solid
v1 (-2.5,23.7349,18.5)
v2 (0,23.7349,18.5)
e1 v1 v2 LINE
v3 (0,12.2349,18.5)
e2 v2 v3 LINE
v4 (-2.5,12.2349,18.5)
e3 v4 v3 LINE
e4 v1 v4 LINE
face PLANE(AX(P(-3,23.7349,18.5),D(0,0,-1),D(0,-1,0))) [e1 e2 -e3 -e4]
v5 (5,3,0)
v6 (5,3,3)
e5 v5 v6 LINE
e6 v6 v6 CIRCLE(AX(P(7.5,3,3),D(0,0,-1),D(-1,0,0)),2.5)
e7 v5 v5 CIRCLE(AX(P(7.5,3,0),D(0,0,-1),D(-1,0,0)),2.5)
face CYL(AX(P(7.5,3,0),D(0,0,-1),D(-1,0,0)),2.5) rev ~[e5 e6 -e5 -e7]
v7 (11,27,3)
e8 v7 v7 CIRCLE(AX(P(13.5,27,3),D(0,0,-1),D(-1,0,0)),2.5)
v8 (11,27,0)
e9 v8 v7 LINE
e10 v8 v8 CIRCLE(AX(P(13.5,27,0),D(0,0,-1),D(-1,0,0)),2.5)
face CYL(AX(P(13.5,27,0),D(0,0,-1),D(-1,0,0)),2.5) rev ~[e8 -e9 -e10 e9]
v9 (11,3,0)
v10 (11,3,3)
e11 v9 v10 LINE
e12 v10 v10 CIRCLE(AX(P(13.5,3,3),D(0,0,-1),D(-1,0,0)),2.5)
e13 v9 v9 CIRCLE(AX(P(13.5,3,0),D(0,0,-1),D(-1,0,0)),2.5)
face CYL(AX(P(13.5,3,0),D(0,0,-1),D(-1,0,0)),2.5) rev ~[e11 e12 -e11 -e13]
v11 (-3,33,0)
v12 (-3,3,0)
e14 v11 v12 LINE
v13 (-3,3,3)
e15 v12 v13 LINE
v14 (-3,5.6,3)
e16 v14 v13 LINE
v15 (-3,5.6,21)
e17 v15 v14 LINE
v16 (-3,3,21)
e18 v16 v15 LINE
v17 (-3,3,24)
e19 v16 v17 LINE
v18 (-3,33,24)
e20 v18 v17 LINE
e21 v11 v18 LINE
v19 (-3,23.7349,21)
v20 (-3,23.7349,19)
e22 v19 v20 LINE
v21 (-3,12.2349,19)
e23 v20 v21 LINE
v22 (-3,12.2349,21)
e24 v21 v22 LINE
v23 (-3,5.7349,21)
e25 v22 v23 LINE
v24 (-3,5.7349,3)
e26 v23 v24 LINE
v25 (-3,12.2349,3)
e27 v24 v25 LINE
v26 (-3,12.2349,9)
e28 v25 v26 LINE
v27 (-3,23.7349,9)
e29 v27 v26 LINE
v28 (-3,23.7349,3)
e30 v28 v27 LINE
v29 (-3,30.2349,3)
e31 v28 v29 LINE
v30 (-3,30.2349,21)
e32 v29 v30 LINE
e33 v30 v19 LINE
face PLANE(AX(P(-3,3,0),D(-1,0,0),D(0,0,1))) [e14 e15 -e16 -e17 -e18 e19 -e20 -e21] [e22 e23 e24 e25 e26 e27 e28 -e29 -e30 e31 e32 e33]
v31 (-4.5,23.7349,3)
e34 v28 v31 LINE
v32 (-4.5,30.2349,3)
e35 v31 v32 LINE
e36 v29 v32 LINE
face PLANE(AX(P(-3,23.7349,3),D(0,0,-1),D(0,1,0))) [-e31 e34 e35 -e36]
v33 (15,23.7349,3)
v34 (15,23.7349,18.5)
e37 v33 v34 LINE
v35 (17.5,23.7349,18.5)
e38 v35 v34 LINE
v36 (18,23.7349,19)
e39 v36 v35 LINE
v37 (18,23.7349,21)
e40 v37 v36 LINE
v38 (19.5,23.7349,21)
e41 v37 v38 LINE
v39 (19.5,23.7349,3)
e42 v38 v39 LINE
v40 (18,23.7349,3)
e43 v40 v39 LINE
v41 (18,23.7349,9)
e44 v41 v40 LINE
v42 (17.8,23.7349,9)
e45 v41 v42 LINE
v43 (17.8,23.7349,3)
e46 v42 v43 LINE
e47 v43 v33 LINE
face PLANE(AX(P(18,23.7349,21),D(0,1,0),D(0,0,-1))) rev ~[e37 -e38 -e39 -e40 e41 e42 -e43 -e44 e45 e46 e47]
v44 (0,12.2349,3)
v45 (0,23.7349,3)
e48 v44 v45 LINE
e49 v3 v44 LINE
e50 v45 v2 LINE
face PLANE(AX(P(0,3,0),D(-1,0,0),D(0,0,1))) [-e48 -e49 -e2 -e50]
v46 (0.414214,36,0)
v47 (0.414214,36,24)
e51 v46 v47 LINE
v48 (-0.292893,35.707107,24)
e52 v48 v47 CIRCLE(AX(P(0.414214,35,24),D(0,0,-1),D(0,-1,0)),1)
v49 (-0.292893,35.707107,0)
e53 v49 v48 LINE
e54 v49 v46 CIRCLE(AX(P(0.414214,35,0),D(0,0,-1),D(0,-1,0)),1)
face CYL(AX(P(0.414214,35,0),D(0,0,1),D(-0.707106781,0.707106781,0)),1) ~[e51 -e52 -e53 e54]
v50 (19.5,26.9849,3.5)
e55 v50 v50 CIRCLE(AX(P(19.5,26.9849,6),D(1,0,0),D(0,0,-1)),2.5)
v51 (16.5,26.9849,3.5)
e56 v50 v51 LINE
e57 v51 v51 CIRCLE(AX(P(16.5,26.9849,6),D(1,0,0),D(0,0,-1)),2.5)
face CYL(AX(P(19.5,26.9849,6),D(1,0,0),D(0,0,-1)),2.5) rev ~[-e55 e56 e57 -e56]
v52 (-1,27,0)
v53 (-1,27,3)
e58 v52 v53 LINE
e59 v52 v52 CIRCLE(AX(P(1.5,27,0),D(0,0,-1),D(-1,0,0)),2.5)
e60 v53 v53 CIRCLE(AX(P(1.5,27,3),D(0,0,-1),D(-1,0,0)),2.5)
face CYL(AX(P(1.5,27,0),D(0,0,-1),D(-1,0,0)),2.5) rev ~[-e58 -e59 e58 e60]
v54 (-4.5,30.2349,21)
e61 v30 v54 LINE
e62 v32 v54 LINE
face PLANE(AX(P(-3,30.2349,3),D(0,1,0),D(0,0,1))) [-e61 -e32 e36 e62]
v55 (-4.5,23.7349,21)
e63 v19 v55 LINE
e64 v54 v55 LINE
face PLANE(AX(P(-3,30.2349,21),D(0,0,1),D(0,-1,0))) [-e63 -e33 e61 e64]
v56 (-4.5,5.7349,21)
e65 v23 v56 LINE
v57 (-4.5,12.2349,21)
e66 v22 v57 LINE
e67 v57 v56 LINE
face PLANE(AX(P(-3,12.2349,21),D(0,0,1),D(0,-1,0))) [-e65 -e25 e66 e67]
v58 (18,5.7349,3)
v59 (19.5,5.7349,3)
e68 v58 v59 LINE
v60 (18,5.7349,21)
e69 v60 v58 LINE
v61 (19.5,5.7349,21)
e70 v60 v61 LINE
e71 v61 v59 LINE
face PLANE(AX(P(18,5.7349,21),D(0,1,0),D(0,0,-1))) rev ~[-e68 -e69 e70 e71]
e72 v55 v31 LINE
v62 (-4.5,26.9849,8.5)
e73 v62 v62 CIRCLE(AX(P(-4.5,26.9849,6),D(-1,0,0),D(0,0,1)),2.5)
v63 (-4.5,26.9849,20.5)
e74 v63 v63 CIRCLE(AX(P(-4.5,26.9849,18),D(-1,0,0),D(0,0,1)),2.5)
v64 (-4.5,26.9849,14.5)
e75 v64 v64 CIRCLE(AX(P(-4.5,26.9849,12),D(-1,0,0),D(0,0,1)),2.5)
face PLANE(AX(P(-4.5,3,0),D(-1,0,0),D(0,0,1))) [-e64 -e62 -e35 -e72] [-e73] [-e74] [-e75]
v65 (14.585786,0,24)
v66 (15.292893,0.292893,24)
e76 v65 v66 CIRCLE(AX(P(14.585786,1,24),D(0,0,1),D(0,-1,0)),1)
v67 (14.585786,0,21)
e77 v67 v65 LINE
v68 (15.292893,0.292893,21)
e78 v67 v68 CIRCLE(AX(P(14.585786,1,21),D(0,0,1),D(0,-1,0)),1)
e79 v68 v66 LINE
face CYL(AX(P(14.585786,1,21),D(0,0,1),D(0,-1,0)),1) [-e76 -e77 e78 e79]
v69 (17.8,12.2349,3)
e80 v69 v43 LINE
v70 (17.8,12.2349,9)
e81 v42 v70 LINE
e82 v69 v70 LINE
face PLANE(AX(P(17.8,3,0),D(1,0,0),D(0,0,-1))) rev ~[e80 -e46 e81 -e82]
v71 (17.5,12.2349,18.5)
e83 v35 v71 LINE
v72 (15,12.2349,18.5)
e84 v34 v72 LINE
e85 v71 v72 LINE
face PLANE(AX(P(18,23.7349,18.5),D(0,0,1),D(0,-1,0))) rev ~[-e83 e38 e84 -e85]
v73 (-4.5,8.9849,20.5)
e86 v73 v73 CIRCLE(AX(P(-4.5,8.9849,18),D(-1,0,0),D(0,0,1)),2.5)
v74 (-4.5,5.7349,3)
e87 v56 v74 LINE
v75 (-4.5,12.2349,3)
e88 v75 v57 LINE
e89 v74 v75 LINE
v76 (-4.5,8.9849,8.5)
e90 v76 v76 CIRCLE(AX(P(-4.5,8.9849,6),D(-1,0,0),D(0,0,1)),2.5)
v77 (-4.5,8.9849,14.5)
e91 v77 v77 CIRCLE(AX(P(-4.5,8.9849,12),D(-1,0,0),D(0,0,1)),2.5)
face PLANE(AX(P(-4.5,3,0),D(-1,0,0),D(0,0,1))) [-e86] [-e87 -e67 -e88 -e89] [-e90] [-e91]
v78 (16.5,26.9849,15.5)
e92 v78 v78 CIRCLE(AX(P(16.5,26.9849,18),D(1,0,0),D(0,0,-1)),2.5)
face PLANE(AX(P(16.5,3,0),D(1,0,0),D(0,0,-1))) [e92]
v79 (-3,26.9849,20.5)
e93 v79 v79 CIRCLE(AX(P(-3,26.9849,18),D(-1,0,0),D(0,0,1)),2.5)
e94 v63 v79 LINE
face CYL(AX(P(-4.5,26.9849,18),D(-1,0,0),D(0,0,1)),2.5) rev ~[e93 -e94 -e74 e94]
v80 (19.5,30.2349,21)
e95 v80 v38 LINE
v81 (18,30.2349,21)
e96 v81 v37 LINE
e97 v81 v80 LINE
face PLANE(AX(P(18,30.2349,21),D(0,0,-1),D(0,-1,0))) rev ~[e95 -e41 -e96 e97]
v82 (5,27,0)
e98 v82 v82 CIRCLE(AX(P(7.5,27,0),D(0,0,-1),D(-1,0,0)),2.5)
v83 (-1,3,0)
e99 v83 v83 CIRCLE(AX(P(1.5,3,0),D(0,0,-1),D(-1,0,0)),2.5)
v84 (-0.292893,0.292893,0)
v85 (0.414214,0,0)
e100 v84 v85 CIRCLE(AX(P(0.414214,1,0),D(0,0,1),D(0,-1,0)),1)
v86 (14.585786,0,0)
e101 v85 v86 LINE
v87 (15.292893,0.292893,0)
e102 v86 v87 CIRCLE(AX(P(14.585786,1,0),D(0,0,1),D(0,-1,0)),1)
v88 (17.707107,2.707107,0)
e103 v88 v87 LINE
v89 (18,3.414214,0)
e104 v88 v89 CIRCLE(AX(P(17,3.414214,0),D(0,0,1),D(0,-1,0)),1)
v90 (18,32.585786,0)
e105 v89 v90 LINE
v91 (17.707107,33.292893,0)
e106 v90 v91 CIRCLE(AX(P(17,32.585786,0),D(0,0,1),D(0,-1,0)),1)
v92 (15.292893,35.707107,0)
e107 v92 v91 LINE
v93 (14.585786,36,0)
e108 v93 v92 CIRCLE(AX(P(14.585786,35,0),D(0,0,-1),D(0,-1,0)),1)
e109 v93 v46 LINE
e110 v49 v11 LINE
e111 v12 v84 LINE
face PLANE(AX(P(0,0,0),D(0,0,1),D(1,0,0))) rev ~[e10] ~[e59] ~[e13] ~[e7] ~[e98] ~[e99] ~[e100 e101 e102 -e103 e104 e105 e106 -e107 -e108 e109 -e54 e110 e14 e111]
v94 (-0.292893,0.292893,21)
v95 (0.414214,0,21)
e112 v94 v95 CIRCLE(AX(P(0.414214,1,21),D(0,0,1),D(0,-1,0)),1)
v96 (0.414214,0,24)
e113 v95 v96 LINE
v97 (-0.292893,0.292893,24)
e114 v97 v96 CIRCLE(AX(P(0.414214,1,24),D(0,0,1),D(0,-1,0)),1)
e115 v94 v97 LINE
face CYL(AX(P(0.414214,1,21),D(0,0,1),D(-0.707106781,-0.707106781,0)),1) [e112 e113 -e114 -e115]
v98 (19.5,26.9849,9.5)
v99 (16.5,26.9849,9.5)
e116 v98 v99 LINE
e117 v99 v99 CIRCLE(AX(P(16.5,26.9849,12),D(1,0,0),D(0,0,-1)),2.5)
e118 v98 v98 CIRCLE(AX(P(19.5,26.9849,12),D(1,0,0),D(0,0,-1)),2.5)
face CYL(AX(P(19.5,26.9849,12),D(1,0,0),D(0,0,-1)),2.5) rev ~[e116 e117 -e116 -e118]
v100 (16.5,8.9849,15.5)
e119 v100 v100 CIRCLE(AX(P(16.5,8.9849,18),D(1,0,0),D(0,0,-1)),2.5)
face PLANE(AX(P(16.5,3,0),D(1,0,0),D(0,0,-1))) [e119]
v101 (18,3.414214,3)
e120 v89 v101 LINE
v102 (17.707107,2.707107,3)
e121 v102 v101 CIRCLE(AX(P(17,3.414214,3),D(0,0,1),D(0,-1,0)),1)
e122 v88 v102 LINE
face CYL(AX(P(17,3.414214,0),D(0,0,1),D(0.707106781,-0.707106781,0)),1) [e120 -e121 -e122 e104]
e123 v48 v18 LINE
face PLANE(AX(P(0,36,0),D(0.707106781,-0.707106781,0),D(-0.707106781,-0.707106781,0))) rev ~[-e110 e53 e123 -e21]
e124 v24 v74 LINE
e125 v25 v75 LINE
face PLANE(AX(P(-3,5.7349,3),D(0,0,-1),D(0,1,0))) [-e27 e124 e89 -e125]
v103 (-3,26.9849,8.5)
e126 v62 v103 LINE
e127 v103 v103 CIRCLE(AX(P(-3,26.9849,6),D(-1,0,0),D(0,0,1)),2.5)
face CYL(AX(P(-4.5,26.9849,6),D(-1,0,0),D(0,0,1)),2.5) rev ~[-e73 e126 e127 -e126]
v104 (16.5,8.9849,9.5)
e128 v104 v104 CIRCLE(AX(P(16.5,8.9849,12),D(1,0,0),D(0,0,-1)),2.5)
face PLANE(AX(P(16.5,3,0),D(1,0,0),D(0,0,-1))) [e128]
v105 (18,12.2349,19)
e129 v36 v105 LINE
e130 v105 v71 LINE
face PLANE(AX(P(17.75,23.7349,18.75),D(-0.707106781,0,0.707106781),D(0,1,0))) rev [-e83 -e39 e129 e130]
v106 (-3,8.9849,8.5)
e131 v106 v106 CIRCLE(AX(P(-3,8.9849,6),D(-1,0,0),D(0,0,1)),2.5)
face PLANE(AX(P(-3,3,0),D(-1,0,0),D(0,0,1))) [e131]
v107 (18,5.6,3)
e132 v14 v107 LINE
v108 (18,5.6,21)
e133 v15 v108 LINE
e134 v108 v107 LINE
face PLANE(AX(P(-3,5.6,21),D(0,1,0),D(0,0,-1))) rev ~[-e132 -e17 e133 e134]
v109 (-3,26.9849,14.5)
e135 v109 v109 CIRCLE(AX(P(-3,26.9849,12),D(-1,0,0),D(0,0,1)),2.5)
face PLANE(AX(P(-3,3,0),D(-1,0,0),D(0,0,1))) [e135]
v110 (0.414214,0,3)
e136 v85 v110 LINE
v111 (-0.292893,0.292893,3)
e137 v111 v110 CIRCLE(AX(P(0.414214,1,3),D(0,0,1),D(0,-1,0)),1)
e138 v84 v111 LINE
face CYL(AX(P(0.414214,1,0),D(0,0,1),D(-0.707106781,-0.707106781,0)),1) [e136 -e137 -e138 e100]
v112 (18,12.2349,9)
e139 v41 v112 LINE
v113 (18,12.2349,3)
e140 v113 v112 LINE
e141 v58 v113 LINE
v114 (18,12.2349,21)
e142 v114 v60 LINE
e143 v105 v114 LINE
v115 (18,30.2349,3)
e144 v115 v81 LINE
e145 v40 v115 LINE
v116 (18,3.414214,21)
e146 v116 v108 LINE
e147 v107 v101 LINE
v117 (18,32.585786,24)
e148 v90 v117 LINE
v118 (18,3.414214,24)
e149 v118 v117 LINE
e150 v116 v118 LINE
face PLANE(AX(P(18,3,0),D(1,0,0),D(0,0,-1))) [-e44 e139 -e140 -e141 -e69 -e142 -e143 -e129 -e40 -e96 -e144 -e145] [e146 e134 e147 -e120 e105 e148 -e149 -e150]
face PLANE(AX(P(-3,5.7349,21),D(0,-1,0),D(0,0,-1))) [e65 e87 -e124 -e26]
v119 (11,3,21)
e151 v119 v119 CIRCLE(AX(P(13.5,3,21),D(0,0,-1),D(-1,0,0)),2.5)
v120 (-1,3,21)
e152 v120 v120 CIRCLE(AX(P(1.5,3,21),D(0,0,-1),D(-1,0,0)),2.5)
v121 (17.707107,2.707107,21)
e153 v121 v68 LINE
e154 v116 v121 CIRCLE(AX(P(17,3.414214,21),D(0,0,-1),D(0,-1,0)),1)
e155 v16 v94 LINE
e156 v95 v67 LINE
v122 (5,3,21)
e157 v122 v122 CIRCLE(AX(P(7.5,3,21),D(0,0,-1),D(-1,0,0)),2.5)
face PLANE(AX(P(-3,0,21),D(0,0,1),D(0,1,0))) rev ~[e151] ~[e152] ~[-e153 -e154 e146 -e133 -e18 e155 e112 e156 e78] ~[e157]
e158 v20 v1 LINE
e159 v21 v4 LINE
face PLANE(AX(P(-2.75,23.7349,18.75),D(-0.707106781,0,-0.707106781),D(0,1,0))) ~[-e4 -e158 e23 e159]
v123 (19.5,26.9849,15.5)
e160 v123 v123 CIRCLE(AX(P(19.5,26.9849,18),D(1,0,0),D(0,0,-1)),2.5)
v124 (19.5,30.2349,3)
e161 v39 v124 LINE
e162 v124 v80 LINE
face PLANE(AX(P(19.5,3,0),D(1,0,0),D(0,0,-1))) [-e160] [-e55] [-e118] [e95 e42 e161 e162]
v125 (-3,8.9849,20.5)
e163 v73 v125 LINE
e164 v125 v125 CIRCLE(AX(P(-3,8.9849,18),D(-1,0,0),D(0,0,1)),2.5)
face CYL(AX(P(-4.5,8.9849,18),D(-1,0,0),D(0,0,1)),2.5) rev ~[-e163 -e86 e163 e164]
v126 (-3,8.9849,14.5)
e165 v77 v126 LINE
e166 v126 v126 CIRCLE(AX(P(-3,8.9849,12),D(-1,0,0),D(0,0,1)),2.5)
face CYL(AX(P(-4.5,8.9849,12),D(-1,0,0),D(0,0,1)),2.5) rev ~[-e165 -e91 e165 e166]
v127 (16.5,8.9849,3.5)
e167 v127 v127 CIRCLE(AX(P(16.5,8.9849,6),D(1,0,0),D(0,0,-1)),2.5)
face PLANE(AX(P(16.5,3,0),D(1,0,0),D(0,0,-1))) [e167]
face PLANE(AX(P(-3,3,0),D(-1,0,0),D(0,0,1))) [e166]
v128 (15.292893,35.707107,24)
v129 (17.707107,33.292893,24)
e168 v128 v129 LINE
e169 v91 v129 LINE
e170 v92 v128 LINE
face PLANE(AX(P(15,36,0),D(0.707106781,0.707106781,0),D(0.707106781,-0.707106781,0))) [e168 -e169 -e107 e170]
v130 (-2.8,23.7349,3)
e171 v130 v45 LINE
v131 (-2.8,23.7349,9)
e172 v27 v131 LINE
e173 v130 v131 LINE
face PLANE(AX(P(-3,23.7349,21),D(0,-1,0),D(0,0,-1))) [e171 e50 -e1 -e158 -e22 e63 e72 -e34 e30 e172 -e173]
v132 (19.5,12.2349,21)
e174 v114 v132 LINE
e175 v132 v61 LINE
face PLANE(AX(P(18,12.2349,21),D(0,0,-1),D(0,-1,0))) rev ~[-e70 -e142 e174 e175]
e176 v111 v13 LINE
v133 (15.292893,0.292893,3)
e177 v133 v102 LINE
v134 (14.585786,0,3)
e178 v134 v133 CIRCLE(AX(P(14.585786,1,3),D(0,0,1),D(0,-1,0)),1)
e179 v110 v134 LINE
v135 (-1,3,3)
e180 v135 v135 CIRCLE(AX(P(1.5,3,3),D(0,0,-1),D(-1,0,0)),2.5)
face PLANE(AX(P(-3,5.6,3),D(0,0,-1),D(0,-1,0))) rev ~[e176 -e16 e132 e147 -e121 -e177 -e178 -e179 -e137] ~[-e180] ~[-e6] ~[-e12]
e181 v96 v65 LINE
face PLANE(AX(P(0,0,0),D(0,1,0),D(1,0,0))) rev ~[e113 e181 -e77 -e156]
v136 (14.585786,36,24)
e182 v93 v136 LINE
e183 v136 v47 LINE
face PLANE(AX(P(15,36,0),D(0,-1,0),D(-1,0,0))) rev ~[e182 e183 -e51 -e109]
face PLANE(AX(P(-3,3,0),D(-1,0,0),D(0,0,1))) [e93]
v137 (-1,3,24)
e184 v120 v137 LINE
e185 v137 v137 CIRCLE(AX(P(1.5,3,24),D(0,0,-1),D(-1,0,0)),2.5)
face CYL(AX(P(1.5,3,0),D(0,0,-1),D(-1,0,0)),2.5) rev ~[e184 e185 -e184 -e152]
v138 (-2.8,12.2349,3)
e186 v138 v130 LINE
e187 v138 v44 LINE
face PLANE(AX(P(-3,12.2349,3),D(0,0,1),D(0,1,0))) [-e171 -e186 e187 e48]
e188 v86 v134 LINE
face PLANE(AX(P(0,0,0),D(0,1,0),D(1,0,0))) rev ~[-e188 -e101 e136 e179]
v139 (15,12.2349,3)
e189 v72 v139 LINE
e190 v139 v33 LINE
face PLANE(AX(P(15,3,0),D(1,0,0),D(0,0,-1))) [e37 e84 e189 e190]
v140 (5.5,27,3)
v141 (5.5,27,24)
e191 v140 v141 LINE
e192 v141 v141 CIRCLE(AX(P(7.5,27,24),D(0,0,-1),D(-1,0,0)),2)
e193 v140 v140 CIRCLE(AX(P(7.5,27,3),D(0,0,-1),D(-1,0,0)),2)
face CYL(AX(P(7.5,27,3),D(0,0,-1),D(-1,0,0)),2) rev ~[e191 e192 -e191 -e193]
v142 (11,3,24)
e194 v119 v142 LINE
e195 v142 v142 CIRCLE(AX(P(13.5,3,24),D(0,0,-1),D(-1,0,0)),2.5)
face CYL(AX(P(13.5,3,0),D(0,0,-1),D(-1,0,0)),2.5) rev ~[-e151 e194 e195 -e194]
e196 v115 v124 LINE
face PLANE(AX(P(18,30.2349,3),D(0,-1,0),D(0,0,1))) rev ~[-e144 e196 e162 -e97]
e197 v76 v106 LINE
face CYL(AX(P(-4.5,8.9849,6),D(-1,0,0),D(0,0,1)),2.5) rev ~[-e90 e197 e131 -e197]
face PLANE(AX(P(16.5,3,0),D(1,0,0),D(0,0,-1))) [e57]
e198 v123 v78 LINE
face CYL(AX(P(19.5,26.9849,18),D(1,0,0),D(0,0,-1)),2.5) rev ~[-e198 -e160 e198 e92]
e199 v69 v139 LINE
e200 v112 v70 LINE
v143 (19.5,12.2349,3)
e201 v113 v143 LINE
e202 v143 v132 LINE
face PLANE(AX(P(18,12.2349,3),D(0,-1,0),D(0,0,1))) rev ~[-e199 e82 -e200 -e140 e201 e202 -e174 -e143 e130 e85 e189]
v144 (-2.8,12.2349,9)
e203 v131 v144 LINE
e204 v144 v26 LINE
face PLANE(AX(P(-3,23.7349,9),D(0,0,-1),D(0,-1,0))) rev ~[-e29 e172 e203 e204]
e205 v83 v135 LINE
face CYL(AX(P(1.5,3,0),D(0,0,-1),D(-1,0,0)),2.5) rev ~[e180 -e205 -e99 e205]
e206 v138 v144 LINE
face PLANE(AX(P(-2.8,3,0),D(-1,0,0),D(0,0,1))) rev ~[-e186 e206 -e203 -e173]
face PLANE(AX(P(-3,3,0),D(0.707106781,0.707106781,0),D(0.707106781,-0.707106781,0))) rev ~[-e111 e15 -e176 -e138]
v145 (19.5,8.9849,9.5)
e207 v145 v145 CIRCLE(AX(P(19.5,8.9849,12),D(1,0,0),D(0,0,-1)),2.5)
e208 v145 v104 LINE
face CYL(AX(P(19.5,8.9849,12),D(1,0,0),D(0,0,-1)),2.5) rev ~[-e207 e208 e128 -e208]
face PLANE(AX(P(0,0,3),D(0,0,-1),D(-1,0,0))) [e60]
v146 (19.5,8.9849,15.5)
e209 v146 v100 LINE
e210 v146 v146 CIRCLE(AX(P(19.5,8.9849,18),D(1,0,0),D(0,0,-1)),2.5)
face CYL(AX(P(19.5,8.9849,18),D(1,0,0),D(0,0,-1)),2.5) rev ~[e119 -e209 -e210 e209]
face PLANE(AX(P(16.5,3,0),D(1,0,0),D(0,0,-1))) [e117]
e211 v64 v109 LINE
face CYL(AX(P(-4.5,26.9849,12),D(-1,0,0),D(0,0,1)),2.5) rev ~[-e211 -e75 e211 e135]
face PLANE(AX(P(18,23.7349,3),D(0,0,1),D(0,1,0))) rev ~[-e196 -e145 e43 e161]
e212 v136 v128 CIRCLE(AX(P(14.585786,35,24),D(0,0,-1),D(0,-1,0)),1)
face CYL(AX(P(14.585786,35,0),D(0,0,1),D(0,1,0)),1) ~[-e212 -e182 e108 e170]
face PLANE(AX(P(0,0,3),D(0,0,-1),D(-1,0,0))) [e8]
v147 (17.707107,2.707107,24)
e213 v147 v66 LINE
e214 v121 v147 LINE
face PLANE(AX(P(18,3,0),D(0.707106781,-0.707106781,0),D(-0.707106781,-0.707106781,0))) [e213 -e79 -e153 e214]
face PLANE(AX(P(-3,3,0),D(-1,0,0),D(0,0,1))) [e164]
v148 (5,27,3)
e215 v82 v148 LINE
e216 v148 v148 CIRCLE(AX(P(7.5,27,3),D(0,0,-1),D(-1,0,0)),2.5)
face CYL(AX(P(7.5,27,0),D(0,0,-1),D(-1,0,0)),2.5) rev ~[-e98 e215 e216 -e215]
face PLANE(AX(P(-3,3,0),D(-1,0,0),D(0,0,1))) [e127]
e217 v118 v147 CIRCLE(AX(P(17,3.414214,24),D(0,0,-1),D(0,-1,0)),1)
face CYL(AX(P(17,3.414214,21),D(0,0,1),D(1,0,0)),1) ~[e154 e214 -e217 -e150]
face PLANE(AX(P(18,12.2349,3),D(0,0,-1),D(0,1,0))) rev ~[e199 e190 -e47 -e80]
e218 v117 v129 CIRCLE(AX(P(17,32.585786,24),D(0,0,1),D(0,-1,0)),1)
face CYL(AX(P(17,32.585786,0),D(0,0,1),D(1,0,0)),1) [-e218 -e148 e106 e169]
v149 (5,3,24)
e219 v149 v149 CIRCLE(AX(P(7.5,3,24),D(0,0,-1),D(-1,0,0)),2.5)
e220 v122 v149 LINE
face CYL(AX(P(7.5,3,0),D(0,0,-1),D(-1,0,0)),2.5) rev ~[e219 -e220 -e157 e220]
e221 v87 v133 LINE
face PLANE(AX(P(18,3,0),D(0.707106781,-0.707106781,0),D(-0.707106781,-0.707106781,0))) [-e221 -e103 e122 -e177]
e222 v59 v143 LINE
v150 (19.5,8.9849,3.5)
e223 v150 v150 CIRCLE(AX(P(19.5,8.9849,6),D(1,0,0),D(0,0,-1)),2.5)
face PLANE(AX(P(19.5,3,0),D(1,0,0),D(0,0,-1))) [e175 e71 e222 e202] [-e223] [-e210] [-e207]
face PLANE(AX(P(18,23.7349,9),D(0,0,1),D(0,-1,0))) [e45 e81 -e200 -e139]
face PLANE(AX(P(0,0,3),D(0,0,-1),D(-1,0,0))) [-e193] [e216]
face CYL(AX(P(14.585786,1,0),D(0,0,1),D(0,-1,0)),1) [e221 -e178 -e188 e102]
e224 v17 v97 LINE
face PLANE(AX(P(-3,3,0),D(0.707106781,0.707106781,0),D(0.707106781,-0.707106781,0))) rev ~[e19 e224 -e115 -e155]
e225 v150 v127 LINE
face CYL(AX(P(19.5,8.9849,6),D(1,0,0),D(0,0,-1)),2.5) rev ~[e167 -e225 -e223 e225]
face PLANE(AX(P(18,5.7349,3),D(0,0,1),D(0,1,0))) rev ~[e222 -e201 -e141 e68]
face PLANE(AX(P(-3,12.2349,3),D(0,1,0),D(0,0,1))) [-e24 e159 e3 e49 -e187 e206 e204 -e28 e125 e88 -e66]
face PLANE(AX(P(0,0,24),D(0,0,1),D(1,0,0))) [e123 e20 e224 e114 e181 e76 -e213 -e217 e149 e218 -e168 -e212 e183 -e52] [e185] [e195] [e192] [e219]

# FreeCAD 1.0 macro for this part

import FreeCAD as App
import Part
import Sketcher


def edges_at(feature, points):
    """Names of the edges that pass closest to the given points."""
    edges = feature.Shape.Edges
    near = lambda p: min(range(len(edges)), key=lambda i: edges[i].distToShape(Part.Vertex(*p))[0])
    return sorted({f"Edge{near(p) + 1}" for p in points})

doc = App.newDocument("Part")
body = doc.addObject("PartDesign::Body", "Body")

# Sketch on XY plane
sketch1 = doc.addObject("Sketcher::SketchObject", "Sketch")
body.addObject(sketch1)
sketch1.AttachmentSupport = (doc.XY_Plane, [""])
sketch1.MapMode = "FlatFace"
sketch1.addGeometry([
    Part.LineSegment(App.Vector(-3, 3, 0), App.Vector(0, 0, 0)),  # 0
    Part.LineSegment(App.Vector(0, 0, 0), App.Vector(15, 0, 0)),  # 1
    Part.LineSegment(App.Vector(15, 0, 0), App.Vector(18, 3, 0)),  # 2
    Part.LineSegment(App.Vector(18, 3, 0), App.Vector(18, 33, 0)),  # 3
    Part.LineSegment(App.Vector(18, 33, 0), App.Vector(15, 36, 0)),  # 4
    Part.LineSegment(App.Vector(15, 36, 0), App.Vector(0, 36, 0)),  # 5
    Part.LineSegment(App.Vector(0, 36, 0), App.Vector(-3, 33, 0)),  # 6
    Part.LineSegment(App.Vector(-3, 33, 0), App.Vector(-3, 3, 0)),  # 7
], False)
sketch1.addConstraint([
    Sketcher.Constraint("Coincident", 0, 2, 1, 1),
    Sketcher.Constraint("Coincident", 1, 2, 2, 1),
    Sketcher.Constraint("Coincident", 2, 2, 3, 1),
    Sketcher.Constraint("Coincident", 3, 2, 4, 1),
    Sketcher.Constraint("Coincident", 4, 2, 5, 1),
    Sketcher.Constraint("Coincident", 5, 2, 6, 1),
    Sketcher.Constraint("Coincident", 6, 2, 7, 1),
    Sketcher.Constraint("Coincident", 7, 2, 0, 1),
    Sketcher.Constraint("Horizontal", 1),
    Sketcher.Constraint("Vertical", 3),
    Sketcher.Constraint("Horizontal", 5),
    Sketcher.Constraint("Vertical", 7),
    Sketcher.Constraint("Coincident", 0, 2, -1, 1),
    Sketcher.Constraint("PointOnObject", 5, 2, -2),
    Sketcher.Constraint("Perpendicular", 0, 2),
    Sketcher.Constraint("Perpendicular", 2, 4),
    Sketcher.Constraint("Perpendicular", 4, 6),
    Sketcher.Constraint("Horizontal", 3, 2, 6, 2),
    Sketcher.Constraint("Horizontal", 2, 2, 7, 2),
    Sketcher.Constraint("Vertical", 1, 2, 4, 2),
    Sketcher.Constraint("DistanceX", 1, 1, 1, 2, 15.0),
    Sketcher.Constraint("DistanceY", -1, 1, 4, 2, 36.0),
    Sketcher.Constraint("DistanceX", 6, 2, 3, 2, 21.0),
])
pad1 = doc.addObject("PartDesign::Pad", "Pad")
body.addObject(pad1)
pad1.Profile = sketch1
pad1.Length = 24

# Sketch on YZ plane
sketch2 = doc.addObject("Sketcher::SketchObject", "Sketch001")
body.addObject(sketch2)
sketch2.AttachmentSupport = (doc.YZ_Plane, [""])
sketch2.MapMode = "FlatFace"
sketch2.AttachmentOffset = App.Placement(App.Vector(0, 0, -3), App.Rotation())
sketch2.addGeometry([
    Part.LineSegment(App.Vector(6, 3, 0), App.Vector(0, 3, 0)),
    Part.LineSegment(App.Vector(0, 3, 0), App.Vector(0, 21, 0)),
    Part.LineSegment(App.Vector(0, 21, 0), App.Vector(6, 21, 0)),
    Part.LineSegment(App.Vector(6, 21, 0), App.Vector(6, 3, 0)),
], False)
sketch2.addConstraint([
    Sketcher.Constraint("Coincident", 0, 2, 1, 1),
    Sketcher.Constraint("Coincident", 1, 2, 2, 1),
    Sketcher.Constraint("Coincident", 2, 2, 3, 1),
    Sketcher.Constraint("Coincident", 3, 2, 0, 1),
    Sketcher.Constraint("Horizontal", 0),
    Sketcher.Constraint("Vertical", 1),
    Sketcher.Constraint("Horizontal", 2),
    Sketcher.Constraint("Vertical", 3),
    Sketcher.Constraint("PointOnObject", 0, 2, -2),
    Sketcher.Constraint("DistanceX", 0, 2, 0, 1, 5.6),
    Sketcher.Constraint("DistanceY", -1, 1, 0, 2, 3.0),
    Sketcher.Constraint("DistanceY", 1, 1, 1, 2, 18.0),
])
pocket1 = doc.addObject("PartDesign::Pocket", "Pocket")
body.addObject(pocket1)
pocket1.Profile = sketch2
pocket1.Type = "ThroughAll"
pocket1.Reversed = True

# Sketch on XY plane
sketch3 = doc.addObject("Sketcher::SketchObject", "Sketch002")
body.addObject(sketch3)
sketch3.AttachmentSupport = (doc.XY_Plane, [""])
sketch3.MapMode = "FlatFace"
sketch3.addGeometry([
    Part.Circle(App.Vector(7.5, 3, 0), App.Vector(0, 0, 1), 2.5),
    Part.Circle(App.Vector(1.5, 3, 0), App.Vector(0, 0, 1), 2.5),
    Part.Circle(App.Vector(13.5, 3, 0), App.Vector(0, 0, 1), 2.5),
], False)
sketch3.addConstraint([
    Sketcher.Constraint("Equal", 0, 1),
    Sketcher.Constraint("Equal", 1, 2),
    Sketcher.Constraint("Horizontal", 0, 3, 1, 3),
    Sketcher.Constraint("Horizontal", 1, 3, 2, 3),
    Sketcher.Constraint("Diameter", 0, 5.0),
    Sketcher.Constraint("DistanceX", 1, 3, 0, 3, 6.0),
    Sketcher.Constraint("DistanceX", 0, 3, 2, 3, 6.0),
    Sketcher.Constraint("DistanceY", -1, 1, 0, 3, 3.0),
    Sketcher.Constraint("DistanceX", -1, 1, 0, 3, 7.5),
])
pocket2 = doc.addObject("PartDesign::Pocket", "Pocket001")
body.addObject(pocket2)
pocket2.Profile = sketch3
pocket2.Type = "ThroughAll"
pocket2.Reversed = True

# Sketch on XY plane
sketch4 = doc.addObject("Sketcher::SketchObject", "Sketch003")
body.addObject(sketch4)
sketch4.AttachmentSupport = (doc.XY_Plane, [""])
sketch4.MapMode = "FlatFace"
sketch4.addGeometry([
    Part.Circle(App.Vector(7.5, 27, 0), App.Vector(0, 0, 1), 2.5),
    Part.Circle(App.Vector(1.5, 27, 0), App.Vector(0, 0, 1), 2.5),
    Part.Circle(App.Vector(13.5, 27, 0), App.Vector(0, 0, 1), 2.5),
], False)
sketch4.addConstraint([
    Sketcher.Constraint("Equal", 0, 1),
    Sketcher.Constraint("Equal", 1, 2),
    Sketcher.Constraint("Horizontal", 0, 3, 1, 3),
    Sketcher.Constraint("Horizontal", 1, 3, 2, 3),
    Sketcher.Constraint("Diameter", 0, 5.0),
    Sketcher.Constraint("DistanceX", 1, 3, 0, 3, 6.0),
    Sketcher.Constraint("DistanceX", 0, 3, 2, 3, 6.0),
    Sketcher.Constraint("DistanceY", -1, 1, 0, 3, 27.0),
    Sketcher.Constraint("DistanceX", -1, 1, 0, 3, 7.5),
])
pocket3 = doc.addObject("PartDesign::Pocket", "Pocket002")
body.addObject(pocket3)
pocket3.Profile = sketch4
pocket3.Length = 3
pocket3.Reversed = True

# Sketch on XY plane
sketch5 = doc.addObject("Sketcher::SketchObject", "Sketch004")
body.addObject(sketch5)
sketch5.AttachmentSupport = (doc.XY_Plane, [""])
sketch5.MapMode = "FlatFace"
sketch5.AttachmentOffset = App.Placement(App.Vector(0, 0, 3), App.Rotation())
sketch5.addGeometry(Part.Circle(App.Vector(7.5, 27, 0), App.Vector(0, 0, 1), 2), False)
sketch5.addConstraint([
    Sketcher.Constraint("Diameter", 0, 4.0),
    Sketcher.Constraint("DistanceY", -1, 1, 0, 3, 27.0),
    Sketcher.Constraint("DistanceX", -1, 1, 0, 3, 7.5),
])
pocket4 = doc.addObject("PartDesign::Pocket", "Pocket003")
body.addObject(pocket4)
pocket4.Profile = sketch5
pocket4.Type = "ThroughAll"
pocket4.Reversed = True

# Sketch on YZ plane
sketch6 = doc.addObject("Sketcher::SketchObject", "Sketch005")
body.addObject(sketch6)
sketch6.AttachmentSupport = (doc.YZ_Plane, [""])
sketch6.MapMode = "FlatFace"
sketch6.AttachmentOffset = App.Placement(App.Vector(0, 0, 18), App.Rotation())
sketch6.addGeometry([
    Part.LineSegment(App.Vector(30, 21, 0), App.Vector(24, 21, 0)),  # 0
    Part.LineSegment(App.Vector(24, 21, 0), App.Vector(24, 3, 0)),  # 1
    Part.LineSegment(App.Vector(24, 3, 0), App.Vector(30, 3, 0)),  # 2
    Part.LineSegment(App.Vector(30, 3, 0), App.Vector(30, 21, 0)),  # 3
    Part.LineSegment(App.Vector(12, 21, 0), App.Vector(6, 21, 0)),  # 4
    Part.LineSegment(App.Vector(6, 21, 0), App.Vector(6, 3, 0)),  # 5
    Part.LineSegment(App.Vector(6, 3, 0), App.Vector(12, 3, 0)),  # 6
    Part.LineSegment(App.Vector(12, 3, 0), App.Vector(12, 21, 0)),  # 7
], False)
sketch6.addConstraint([
    Sketcher.Constraint("Coincident", 0, 2, 1, 1),
    Sketcher.Constraint("Coincident", 1, 2, 2, 1),
    Sketcher.Constraint("Coincident", 2, 2, 3, 1),
    Sketcher.Constraint("Coincident", 3, 2, 0, 1),
    Sketcher.Constraint("Coincident", 4, 2, 5, 1),
    Sketcher.Constraint("Coincident", 5, 2, 6, 1),
    Sketcher.Constraint("Coincident", 6, 2, 7, 1),
    Sketcher.Constraint("Coincident", 7, 2, 4, 1),
    Sketcher.Constraint("Horizontal", 0),
    Sketcher.Constraint("Vertical", 1),
    Sketcher.Constraint("Horizontal", 2),
    Sketcher.Constraint("Vertical", 3),
    Sketcher.Constraint("Horizontal", 4),
    Sketcher.Constraint("Vertical", 5),
    Sketcher.Constraint("Horizontal", 6),
    Sketcher.Constraint("Vertical", 7),
    Sketcher.Constraint("Horizontal", 3, 2, 4, 2),
    Sketcher.Constraint("Horizontal", 2, 2, 5, 2),
    Sketcher.Constraint("Equal", 2, 4),
    Sketcher.Constraint("DistanceY", 1, 2, 1, 1, 18.0),
    Sketcher.Constraint("DistanceX", 0, 2, 0, 1, 6.5),
    Sketcher.Constraint("DistanceX", 4, 2, 0, 2, 18.0),
    Sketcher.Constraint("DistanceY", -1, 1, 0, 2, 21.0),
    Sketcher.Constraint("DistanceX", -1, 1, 0, 2, 23.735),
])
pad2 = doc.addObject("PartDesign::Pad", "Pad001")
body.addObject(pad2)
pad2.Profile = sketch6
pad2.Length = 1.5

# Sketch on YZ plane
sketch7 = doc.addObject("Sketcher::SketchObject", "Sketch006")
body.addObject(sketch7)
sketch7.AttachmentSupport = (doc.YZ_Plane, [""])
sketch7.MapMode = "FlatFace"
sketch7.AttachmentOffset = App.Placement(App.Vector(0, 0, 19.5), App.Rotation())
sketch7.addGeometry([
    Part.Circle(App.Vector(27, 12, 0), App.Vector(0, 0, 1), 2.5),  # 0
    Part.Circle(App.Vector(27, 6, 0), App.Vector(0, 0, 1), 2.5),  # 1
    Part.Circle(App.Vector(27, 18, 0), App.Vector(0, 0, 1), 2.5),  # 2
    Part.Circle(App.Vector(9, 12, 0), App.Vector(0, 0, 1), 2.5),  # 3
    Part.Circle(App.Vector(9, 6, 0), App.Vector(0, 0, 1), 2.5),  # 4
    Part.Circle(App.Vector(9, 18, 0), App.Vector(0, 0, 1), 2.5),  # 5
], False)
sketch7.addConstraint([
    Sketcher.Constraint("Equal", 0, 1),
    Sketcher.Constraint("Equal", 1, 2),
    Sketcher.Constraint("Equal", 2, 3),
    Sketcher.Constraint("Equal", 3, 4),
    Sketcher.Constraint("Equal", 4, 5),
    Sketcher.Constraint("Horizontal", 0, 3, 3, 3),
    Sketcher.Constraint("Horizontal", 1, 3, 4, 3),
    Sketcher.Constraint("Horizontal", 2, 3, 5, 3),
    Sketcher.Constraint("Vertical", 0, 3, 1, 3),
    Sketcher.Constraint("Vertical", 1, 3, 2, 3),
    Sketcher.Constraint("Vertical", 3, 3, 4, 3),
    Sketcher.Constraint("Vertical", 4, 3, 5, 3),
    Sketcher.Constraint("Diameter", 0, 5.0),
    Sketcher.Constraint("DistanceY", -1, 1, 1, 3, 6.0),
    Sketcher.Constraint("DistanceY", -1, 1, 2, 3, 18.0),
    Sketcher.Constraint("DistanceY", 1, 3, 0, 3, 6.0),
    Sketcher.Constraint("DistanceX", 3, 3, 0, 3, 18.0),
    Sketcher.Constraint("DistanceX", -1, 1, 0, 3, 26.985),
])
pocket5 = doc.addObject("PartDesign::Pocket", "Pocket004")
body.addObject(pocket5)
pocket5.Profile = sketch7
pocket5.Length = 3

# Sketch on YZ plane
sketch8 = doc.addObject("Sketcher::SketchObject", "Sketch007")
body.addObject(sketch8)
sketch8.AttachmentSupport = (doc.YZ_Plane, [""])
sketch8.MapMode = "FlatFace"
sketch8.AttachmentOffset = App.Placement(App.Vector(0, 0, -3), App.Rotation())
sketch8.addGeometry([
    Part.LineSegment(App.Vector(30, 21, 0), App.Vector(30, 3, 0)),  # 0
    Part.LineSegment(App.Vector(30, 3, 0), App.Vector(24, 3, 0)),  # 1
    Part.LineSegment(App.Vector(24, 3, 0), App.Vector(24, 21, 0)),  # 2
    Part.LineSegment(App.Vector(24, 21, 0), App.Vector(30, 21, 0)),  # 3
    Part.LineSegment(App.Vector(6, 21, 0), App.Vector(12, 21, 0)),  # 4
    Part.LineSegment(App.Vector(12, 21, 0), App.Vector(12, 3, 0)),  # 5
    Part.LineSegment(App.Vector(12, 3, 0), App.Vector(6, 3, 0)),  # 6
    Part.LineSegment(App.Vector(6, 3, 0), App.Vector(6, 21, 0)),  # 7
], False)
sketch8.addConstraint([
    Sketcher.Constraint("Coincident", 0, 2, 1, 1),
    Sketcher.Constraint("Coincident", 1, 2, 2, 1),
    Sketcher.Constraint("Coincident", 2, 2, 3, 1),
    Sketcher.Constraint("Coincident", 3, 2, 0, 1),
    Sketcher.Constraint("Coincident", 4, 2, 5, 1),
    Sketcher.Constraint("Coincident", 5, 2, 6, 1),
    Sketcher.Constraint("Coincident", 6, 2, 7, 1),
    Sketcher.Constraint("Coincident", 7, 2, 4, 1),
    Sketcher.Constraint("Vertical", 0),
    Sketcher.Constraint("Horizontal", 1),
    Sketcher.Constraint("Vertical", 2),
    Sketcher.Constraint("Horizontal", 3),
    Sketcher.Constraint("Horizontal", 4),
    Sketcher.Constraint("Vertical", 5),
    Sketcher.Constraint("Horizontal", 6),
    Sketcher.Constraint("Vertical", 7),
    Sketcher.Constraint("Horizontal", 3, 2, 4, 2),
    Sketcher.Constraint("Horizontal", 1, 2, 5, 2),
    Sketcher.Constraint("Equal", 3, 4),
    Sketcher.Constraint("DistanceY", 0, 2, 0, 1, 18.0),
    Sketcher.Constraint("DistanceX", 1, 2, 1, 1, 6.5),
    Sketcher.Constraint("DistanceY", -1, 1, 0, 2, 3.0),
    Sketcher.Constraint("DistanceX", 4, 2, 3, 2, 18.0),
    Sketcher.Constraint("DistanceX", -1, 1, 0, 2, 30.235),
])
pad3 = doc.addObject("PartDesign::Pad", "Pad002")
body.addObject(pad3)
pad3.Profile = sketch8
pad3.Length = 1.5
pad3.Reversed = True

# Sketch on YZ plane
sketch9 = doc.addObject("Sketcher::SketchObject", "Sketch008")
body.addObject(sketch9)
sketch9.AttachmentSupport = (doc.YZ_Plane, [""])
sketch9.MapMode = "FlatFace"
sketch9.AttachmentOffset = App.Placement(App.Vector(0, 0, -4.5), App.Rotation())
sketch9.addGeometry([
    Part.Circle(App.Vector(27, 6, 0), App.Vector(0, 0, 1), 2.5),  # 0
    Part.Circle(App.Vector(27, 12, 0), App.Vector(0, 0, 1), 2.5),  # 1
    Part.Circle(App.Vector(27, 18, 0), App.Vector(0, 0, 1), 2.5),  # 2
    Part.Circle(App.Vector(9, 18, 0), App.Vector(0, 0, 1), 2.5),  # 3
    Part.Circle(App.Vector(9, 12, 0), App.Vector(0, 0, 1), 2.5),  # 4
    Part.Circle(App.Vector(9, 6, 0), App.Vector(0, 0, 1), 2.5),  # 5
], False)
sketch9.addConstraint([
    Sketcher.Constraint("Equal", 0, 1),
    Sketcher.Constraint("Equal", 1, 2),
    Sketcher.Constraint("Equal", 2, 3),
    Sketcher.Constraint("Equal", 3, 4),
    Sketcher.Constraint("Equal", 4, 5),
    Sketcher.Constraint("Horizontal", 2, 3, 3, 3),
    Sketcher.Constraint("Horizontal", 1, 3, 4, 3),
    Sketcher.Constraint("Horizontal", 0, 3, 5, 3),
    Sketcher.Constraint("Vertical", 0, 3, 1, 3),
    Sketcher.Constraint("Vertical", 1, 3, 2, 3),
    Sketcher.Constraint("Vertical", 3, 3, 4, 3),
    Sketcher.Constraint("Vertical", 4, 3, 5, 3),
    Sketcher.Constraint("Diameter", 0, 5.0),
    Sketcher.Constraint("DistanceY", -1, 1, 0, 3, 6.0),
    Sketcher.Constraint("DistanceY", -1, 1, 1, 3, 12.0),
    Sketcher.Constraint("DistanceY", -1, 1, 2, 3, 18.0),
    Sketcher.Constraint("DistanceX", 3, 3, 2, 3, 18.0),
    Sketcher.Constraint("DistanceX", -1, 1, 0, 3, 26.985),
])
pocket6 = doc.addObject("PartDesign::Pocket", "Pocket005")
body.addObject(pocket6)
pocket6.Profile = sketch9
pocket6.Length = 1.5
pocket6.Reversed = True

# Sketch on YZ plane
sketch10 = doc.addObject("Sketcher::SketchObject", "Sketch009")
body.addObject(sketch10)
sketch10.AttachmentSupport = (doc.YZ_Plane, [""])
sketch10.MapMode = "FlatFace"
sketch10.AttachmentOffset = App.Placement(App.Vector(0, 0, 18), App.Rotation())
sketch10.addGeometry([
    Part.LineSegment(App.Vector(24, 18, 0), App.Vector(12, 18, 0)),
    Part.LineSegment(App.Vector(12, 18, 0), App.Vector(12, 3, 0)),
    Part.LineSegment(App.Vector(12, 3, 0), App.Vector(24, 3, 0)),
    Part.LineSegment(App.Vector(24, 3, 0), App.Vector(24, 18, 0)),
], False)
sketch10.addConstraint([
    Sketcher.Constraint("Coincident", 0, 2, 1, 1),
    Sketcher.Constraint("Coincident", 1, 2, 2, 1),
    Sketcher.Constraint("Coincident", 2, 2, 3, 1),
    Sketcher.Constraint("Coincident", 3, 2, 0, 1),
    Sketcher.Constraint("Horizontal", 0),
    Sketcher.Constraint("Vertical", 1),
    Sketcher.Constraint("Horizontal", 2),
    Sketcher.Constraint("Vertical", 3),
    Sketcher.Constraint("DistanceY", 1, 2, 1, 1, 15.5),
    Sketcher.Constraint("DistanceX", 0, 2, 0, 1, 11.5),
    Sketcher.Constraint("DistanceY", -1, 1, 1, 2, 3.0),
    Sketcher.Constraint("DistanceX", -1, 1, 0, 2, 12.235),
])
pocket7 = doc.addObject("PartDesign::Pocket", "Pocket006")
body.addObject(pocket7)
pocket7.Profile = sketch10
pocket7.Length = 3

# Sketch on YZ plane
sketch11 = doc.addObject("Sketcher::SketchObject", "Sketch010")
body.addObject(sketch11)
sketch11.AttachmentSupport = (doc.YZ_Plane, [""])
sketch11.MapMode = "FlatFace"
sketch11.AttachmentOffset = App.Placement(App.Vector(0, 0, 18), App.Rotation())
sketch11.addGeometry([
    Part.LineSegment(App.Vector(24, 3, 0), App.Vector(24, 9, 0)),
    Part.LineSegment(App.Vector(24, 9, 0), App.Vector(12, 9, 0)),
    Part.LineSegment(App.Vector(12, 9, 0), App.Vector(12, 3, 0)),
    Part.LineSegment(App.Vector(12, 3, 0), App.Vector(24, 3, 0)),
], False)
sketch11.addConstraint([
    Sketcher.Constraint("Coincident", 0, 2, 1, 1),
    Sketcher.Constraint("Coincident", 1, 2, 2, 1),
    Sketcher.Constraint("Coincident", 2, 2, 3, 1),
    Sketcher.Constraint("Coincident", 3, 2, 0, 1),
    Sketcher.Constraint("Vertical", 0),
    Sketcher.Constraint("Horizontal", 1),
    Sketcher.Constraint("Vertical", 2),
    Sketcher.Constraint("Horizontal", 3),
    Sketcher.Constraint("DistanceY", 0, 1, 0, 2, 6.0),
    Sketcher.Constraint("DistanceX", 1, 2, 1, 1, 11.5),
    Sketcher.Constraint("DistanceY", -1, 1, 0, 2, 9.0),
    Sketcher.Constraint("DistanceX", -1, 1, 0, 2, 23.735),
])
pad4 = doc.addObject("PartDesign::Pad", "Pad003")
body.addObject(pad4)
pad4.Profile = sketch11
pad4.Length = 0.2
pad4.Reversed = True

# Sketch on YZ plane
sketch12 = doc.addObject("Sketcher::SketchObject", "Sketch011")
body.addObject(sketch12)
sketch12.AttachmentSupport = (doc.YZ_Plane, [""])
sketch12.MapMode = "FlatFace"
sketch12.AttachmentOffset = App.Placement(App.Vector(0, 0, -3), App.Rotation())
sketch12.addGeometry([
    Part.LineSegment(App.Vector(24, 18, 0), App.Vector(24, 3, 0)),
    Part.LineSegment(App.Vector(24, 3, 0), App.Vector(12, 3, 0)),
    Part.LineSegment(App.Vector(12, 3, 0), App.Vector(12, 18, 0)),
    Part.LineSegment(App.Vector(12, 18, 0), App.Vector(24, 18, 0)),
], False)
sketch12.addConstraint([
    Sketcher.Constraint("Coincident", 0, 2, 1, 1),
    Sketcher.Constraint("Coincident", 1, 2, 2, 1),
    Sketcher.Constraint("Coincident", 2, 2, 3, 1),
    Sketcher.Constraint("Coincident", 3, 2, 0, 1),
    Sketcher.Constraint("Vertical", 0),
    Sketcher.Constraint("Horizontal", 1),
    Sketcher.Constraint("Vertical", 2),
    Sketcher.Constraint("Horizontal", 3),
    Sketcher.Constraint("DistanceY", 0, 2, 0, 1, 15.5),
    Sketcher.Constraint("DistanceX", 1, 2, 1, 1, 11.5),
    Sketcher.Constraint("DistanceY", -1, 1, 0, 2, 3.0),
    Sketcher.Constraint("DistanceX", -1, 1, 0, 2, 23.735),
])
pocket8 = doc.addObject("PartDesign::Pocket", "Pocket007")
body.addObject(pocket8)
pocket8.Profile = sketch12
pocket8.Length = 3
pocket8.Reversed = True

# Sketch on YZ plane
sketch13 = doc.addObject("Sketcher::SketchObject", "Sketch012")
body.addObject(sketch13)
sketch13.AttachmentSupport = (doc.YZ_Plane, [""])
sketch13.MapMode = "FlatFace"
sketch13.AttachmentOffset = App.Placement(App.Vector(0, 0, -3), App.Rotation())
sketch13.addGeometry([
    Part.LineSegment(App.Vector(24, 9, 0), App.Vector(24, 3, 0)),
    Part.LineSegment(App.Vector(24, 3, 0), App.Vector(12, 3, 0)),
    Part.LineSegment(App.Vector(12, 3, 0), App.Vector(12, 9, 0)),
    Part.LineSegment(App.Vector(12, 9, 0), App.Vector(24, 9, 0)),
], False)
sketch13.addConstraint([
    Sketcher.Constraint("Coincident", 0, 2, 1, 1),
    Sketcher.Constraint("Coincident", 1, 2, 2, 1),
    Sketcher.Constraint("Coincident", 2, 2, 3, 1),
    Sketcher.Constraint("Coincident", 3, 2, 0, 1),
    Sketcher.Constraint("Vertical", 0),
    Sketcher.Constraint("Horizontal", 1),
    Sketcher.Constraint("Vertical", 2),
    Sketcher.Constraint("Horizontal", 3),
    Sketcher.Constraint("DistanceY", 0, 2, 0, 1, 6.0),
    Sketcher.Constraint("DistanceY", -1, 1, 0, 2, 3.0),
    Sketcher.Constraint("DistanceX", 1, 2, 1, 1, 11.5152),
    Sketcher.Constraint("DistanceX", -1, 1, 0, 2, 23.735),
])
pad5 = doc.addObject("PartDesign::Pad", "Pad004")
body.addObject(pad5)
pad5.Profile = sketch13
pad5.Length = 0.2
doc.recompute()

fillet = doc.addObject("PartDesign::Fillet", "Fillet")
body.addObject(fillet)
fillet.Base = (pad5, edges_at(pad5, [
    (18, 33, 12),
    (15, 36, 12),
    (0, 36, 12),
    (0, 0, 1.5),
    (0, 0, 22.5),
    (15, 0, 1.5),
    (18, 3, 1.5),
    (15, 0, 22.5),
    (18, 3, 22.5),
]))
fillet.Radius = 1
doc.recompute()

chamfer = doc.addObject("PartDesign::Chamfer", "Chamfer")
body.addObject(chamfer)
chamfer.Base = (fillet, edges_at(fillet, [(-3, 17.985, 18.5), (18, 17.985, 18.5)]))
chamfer.Size = 0.5

doc.recompute()
